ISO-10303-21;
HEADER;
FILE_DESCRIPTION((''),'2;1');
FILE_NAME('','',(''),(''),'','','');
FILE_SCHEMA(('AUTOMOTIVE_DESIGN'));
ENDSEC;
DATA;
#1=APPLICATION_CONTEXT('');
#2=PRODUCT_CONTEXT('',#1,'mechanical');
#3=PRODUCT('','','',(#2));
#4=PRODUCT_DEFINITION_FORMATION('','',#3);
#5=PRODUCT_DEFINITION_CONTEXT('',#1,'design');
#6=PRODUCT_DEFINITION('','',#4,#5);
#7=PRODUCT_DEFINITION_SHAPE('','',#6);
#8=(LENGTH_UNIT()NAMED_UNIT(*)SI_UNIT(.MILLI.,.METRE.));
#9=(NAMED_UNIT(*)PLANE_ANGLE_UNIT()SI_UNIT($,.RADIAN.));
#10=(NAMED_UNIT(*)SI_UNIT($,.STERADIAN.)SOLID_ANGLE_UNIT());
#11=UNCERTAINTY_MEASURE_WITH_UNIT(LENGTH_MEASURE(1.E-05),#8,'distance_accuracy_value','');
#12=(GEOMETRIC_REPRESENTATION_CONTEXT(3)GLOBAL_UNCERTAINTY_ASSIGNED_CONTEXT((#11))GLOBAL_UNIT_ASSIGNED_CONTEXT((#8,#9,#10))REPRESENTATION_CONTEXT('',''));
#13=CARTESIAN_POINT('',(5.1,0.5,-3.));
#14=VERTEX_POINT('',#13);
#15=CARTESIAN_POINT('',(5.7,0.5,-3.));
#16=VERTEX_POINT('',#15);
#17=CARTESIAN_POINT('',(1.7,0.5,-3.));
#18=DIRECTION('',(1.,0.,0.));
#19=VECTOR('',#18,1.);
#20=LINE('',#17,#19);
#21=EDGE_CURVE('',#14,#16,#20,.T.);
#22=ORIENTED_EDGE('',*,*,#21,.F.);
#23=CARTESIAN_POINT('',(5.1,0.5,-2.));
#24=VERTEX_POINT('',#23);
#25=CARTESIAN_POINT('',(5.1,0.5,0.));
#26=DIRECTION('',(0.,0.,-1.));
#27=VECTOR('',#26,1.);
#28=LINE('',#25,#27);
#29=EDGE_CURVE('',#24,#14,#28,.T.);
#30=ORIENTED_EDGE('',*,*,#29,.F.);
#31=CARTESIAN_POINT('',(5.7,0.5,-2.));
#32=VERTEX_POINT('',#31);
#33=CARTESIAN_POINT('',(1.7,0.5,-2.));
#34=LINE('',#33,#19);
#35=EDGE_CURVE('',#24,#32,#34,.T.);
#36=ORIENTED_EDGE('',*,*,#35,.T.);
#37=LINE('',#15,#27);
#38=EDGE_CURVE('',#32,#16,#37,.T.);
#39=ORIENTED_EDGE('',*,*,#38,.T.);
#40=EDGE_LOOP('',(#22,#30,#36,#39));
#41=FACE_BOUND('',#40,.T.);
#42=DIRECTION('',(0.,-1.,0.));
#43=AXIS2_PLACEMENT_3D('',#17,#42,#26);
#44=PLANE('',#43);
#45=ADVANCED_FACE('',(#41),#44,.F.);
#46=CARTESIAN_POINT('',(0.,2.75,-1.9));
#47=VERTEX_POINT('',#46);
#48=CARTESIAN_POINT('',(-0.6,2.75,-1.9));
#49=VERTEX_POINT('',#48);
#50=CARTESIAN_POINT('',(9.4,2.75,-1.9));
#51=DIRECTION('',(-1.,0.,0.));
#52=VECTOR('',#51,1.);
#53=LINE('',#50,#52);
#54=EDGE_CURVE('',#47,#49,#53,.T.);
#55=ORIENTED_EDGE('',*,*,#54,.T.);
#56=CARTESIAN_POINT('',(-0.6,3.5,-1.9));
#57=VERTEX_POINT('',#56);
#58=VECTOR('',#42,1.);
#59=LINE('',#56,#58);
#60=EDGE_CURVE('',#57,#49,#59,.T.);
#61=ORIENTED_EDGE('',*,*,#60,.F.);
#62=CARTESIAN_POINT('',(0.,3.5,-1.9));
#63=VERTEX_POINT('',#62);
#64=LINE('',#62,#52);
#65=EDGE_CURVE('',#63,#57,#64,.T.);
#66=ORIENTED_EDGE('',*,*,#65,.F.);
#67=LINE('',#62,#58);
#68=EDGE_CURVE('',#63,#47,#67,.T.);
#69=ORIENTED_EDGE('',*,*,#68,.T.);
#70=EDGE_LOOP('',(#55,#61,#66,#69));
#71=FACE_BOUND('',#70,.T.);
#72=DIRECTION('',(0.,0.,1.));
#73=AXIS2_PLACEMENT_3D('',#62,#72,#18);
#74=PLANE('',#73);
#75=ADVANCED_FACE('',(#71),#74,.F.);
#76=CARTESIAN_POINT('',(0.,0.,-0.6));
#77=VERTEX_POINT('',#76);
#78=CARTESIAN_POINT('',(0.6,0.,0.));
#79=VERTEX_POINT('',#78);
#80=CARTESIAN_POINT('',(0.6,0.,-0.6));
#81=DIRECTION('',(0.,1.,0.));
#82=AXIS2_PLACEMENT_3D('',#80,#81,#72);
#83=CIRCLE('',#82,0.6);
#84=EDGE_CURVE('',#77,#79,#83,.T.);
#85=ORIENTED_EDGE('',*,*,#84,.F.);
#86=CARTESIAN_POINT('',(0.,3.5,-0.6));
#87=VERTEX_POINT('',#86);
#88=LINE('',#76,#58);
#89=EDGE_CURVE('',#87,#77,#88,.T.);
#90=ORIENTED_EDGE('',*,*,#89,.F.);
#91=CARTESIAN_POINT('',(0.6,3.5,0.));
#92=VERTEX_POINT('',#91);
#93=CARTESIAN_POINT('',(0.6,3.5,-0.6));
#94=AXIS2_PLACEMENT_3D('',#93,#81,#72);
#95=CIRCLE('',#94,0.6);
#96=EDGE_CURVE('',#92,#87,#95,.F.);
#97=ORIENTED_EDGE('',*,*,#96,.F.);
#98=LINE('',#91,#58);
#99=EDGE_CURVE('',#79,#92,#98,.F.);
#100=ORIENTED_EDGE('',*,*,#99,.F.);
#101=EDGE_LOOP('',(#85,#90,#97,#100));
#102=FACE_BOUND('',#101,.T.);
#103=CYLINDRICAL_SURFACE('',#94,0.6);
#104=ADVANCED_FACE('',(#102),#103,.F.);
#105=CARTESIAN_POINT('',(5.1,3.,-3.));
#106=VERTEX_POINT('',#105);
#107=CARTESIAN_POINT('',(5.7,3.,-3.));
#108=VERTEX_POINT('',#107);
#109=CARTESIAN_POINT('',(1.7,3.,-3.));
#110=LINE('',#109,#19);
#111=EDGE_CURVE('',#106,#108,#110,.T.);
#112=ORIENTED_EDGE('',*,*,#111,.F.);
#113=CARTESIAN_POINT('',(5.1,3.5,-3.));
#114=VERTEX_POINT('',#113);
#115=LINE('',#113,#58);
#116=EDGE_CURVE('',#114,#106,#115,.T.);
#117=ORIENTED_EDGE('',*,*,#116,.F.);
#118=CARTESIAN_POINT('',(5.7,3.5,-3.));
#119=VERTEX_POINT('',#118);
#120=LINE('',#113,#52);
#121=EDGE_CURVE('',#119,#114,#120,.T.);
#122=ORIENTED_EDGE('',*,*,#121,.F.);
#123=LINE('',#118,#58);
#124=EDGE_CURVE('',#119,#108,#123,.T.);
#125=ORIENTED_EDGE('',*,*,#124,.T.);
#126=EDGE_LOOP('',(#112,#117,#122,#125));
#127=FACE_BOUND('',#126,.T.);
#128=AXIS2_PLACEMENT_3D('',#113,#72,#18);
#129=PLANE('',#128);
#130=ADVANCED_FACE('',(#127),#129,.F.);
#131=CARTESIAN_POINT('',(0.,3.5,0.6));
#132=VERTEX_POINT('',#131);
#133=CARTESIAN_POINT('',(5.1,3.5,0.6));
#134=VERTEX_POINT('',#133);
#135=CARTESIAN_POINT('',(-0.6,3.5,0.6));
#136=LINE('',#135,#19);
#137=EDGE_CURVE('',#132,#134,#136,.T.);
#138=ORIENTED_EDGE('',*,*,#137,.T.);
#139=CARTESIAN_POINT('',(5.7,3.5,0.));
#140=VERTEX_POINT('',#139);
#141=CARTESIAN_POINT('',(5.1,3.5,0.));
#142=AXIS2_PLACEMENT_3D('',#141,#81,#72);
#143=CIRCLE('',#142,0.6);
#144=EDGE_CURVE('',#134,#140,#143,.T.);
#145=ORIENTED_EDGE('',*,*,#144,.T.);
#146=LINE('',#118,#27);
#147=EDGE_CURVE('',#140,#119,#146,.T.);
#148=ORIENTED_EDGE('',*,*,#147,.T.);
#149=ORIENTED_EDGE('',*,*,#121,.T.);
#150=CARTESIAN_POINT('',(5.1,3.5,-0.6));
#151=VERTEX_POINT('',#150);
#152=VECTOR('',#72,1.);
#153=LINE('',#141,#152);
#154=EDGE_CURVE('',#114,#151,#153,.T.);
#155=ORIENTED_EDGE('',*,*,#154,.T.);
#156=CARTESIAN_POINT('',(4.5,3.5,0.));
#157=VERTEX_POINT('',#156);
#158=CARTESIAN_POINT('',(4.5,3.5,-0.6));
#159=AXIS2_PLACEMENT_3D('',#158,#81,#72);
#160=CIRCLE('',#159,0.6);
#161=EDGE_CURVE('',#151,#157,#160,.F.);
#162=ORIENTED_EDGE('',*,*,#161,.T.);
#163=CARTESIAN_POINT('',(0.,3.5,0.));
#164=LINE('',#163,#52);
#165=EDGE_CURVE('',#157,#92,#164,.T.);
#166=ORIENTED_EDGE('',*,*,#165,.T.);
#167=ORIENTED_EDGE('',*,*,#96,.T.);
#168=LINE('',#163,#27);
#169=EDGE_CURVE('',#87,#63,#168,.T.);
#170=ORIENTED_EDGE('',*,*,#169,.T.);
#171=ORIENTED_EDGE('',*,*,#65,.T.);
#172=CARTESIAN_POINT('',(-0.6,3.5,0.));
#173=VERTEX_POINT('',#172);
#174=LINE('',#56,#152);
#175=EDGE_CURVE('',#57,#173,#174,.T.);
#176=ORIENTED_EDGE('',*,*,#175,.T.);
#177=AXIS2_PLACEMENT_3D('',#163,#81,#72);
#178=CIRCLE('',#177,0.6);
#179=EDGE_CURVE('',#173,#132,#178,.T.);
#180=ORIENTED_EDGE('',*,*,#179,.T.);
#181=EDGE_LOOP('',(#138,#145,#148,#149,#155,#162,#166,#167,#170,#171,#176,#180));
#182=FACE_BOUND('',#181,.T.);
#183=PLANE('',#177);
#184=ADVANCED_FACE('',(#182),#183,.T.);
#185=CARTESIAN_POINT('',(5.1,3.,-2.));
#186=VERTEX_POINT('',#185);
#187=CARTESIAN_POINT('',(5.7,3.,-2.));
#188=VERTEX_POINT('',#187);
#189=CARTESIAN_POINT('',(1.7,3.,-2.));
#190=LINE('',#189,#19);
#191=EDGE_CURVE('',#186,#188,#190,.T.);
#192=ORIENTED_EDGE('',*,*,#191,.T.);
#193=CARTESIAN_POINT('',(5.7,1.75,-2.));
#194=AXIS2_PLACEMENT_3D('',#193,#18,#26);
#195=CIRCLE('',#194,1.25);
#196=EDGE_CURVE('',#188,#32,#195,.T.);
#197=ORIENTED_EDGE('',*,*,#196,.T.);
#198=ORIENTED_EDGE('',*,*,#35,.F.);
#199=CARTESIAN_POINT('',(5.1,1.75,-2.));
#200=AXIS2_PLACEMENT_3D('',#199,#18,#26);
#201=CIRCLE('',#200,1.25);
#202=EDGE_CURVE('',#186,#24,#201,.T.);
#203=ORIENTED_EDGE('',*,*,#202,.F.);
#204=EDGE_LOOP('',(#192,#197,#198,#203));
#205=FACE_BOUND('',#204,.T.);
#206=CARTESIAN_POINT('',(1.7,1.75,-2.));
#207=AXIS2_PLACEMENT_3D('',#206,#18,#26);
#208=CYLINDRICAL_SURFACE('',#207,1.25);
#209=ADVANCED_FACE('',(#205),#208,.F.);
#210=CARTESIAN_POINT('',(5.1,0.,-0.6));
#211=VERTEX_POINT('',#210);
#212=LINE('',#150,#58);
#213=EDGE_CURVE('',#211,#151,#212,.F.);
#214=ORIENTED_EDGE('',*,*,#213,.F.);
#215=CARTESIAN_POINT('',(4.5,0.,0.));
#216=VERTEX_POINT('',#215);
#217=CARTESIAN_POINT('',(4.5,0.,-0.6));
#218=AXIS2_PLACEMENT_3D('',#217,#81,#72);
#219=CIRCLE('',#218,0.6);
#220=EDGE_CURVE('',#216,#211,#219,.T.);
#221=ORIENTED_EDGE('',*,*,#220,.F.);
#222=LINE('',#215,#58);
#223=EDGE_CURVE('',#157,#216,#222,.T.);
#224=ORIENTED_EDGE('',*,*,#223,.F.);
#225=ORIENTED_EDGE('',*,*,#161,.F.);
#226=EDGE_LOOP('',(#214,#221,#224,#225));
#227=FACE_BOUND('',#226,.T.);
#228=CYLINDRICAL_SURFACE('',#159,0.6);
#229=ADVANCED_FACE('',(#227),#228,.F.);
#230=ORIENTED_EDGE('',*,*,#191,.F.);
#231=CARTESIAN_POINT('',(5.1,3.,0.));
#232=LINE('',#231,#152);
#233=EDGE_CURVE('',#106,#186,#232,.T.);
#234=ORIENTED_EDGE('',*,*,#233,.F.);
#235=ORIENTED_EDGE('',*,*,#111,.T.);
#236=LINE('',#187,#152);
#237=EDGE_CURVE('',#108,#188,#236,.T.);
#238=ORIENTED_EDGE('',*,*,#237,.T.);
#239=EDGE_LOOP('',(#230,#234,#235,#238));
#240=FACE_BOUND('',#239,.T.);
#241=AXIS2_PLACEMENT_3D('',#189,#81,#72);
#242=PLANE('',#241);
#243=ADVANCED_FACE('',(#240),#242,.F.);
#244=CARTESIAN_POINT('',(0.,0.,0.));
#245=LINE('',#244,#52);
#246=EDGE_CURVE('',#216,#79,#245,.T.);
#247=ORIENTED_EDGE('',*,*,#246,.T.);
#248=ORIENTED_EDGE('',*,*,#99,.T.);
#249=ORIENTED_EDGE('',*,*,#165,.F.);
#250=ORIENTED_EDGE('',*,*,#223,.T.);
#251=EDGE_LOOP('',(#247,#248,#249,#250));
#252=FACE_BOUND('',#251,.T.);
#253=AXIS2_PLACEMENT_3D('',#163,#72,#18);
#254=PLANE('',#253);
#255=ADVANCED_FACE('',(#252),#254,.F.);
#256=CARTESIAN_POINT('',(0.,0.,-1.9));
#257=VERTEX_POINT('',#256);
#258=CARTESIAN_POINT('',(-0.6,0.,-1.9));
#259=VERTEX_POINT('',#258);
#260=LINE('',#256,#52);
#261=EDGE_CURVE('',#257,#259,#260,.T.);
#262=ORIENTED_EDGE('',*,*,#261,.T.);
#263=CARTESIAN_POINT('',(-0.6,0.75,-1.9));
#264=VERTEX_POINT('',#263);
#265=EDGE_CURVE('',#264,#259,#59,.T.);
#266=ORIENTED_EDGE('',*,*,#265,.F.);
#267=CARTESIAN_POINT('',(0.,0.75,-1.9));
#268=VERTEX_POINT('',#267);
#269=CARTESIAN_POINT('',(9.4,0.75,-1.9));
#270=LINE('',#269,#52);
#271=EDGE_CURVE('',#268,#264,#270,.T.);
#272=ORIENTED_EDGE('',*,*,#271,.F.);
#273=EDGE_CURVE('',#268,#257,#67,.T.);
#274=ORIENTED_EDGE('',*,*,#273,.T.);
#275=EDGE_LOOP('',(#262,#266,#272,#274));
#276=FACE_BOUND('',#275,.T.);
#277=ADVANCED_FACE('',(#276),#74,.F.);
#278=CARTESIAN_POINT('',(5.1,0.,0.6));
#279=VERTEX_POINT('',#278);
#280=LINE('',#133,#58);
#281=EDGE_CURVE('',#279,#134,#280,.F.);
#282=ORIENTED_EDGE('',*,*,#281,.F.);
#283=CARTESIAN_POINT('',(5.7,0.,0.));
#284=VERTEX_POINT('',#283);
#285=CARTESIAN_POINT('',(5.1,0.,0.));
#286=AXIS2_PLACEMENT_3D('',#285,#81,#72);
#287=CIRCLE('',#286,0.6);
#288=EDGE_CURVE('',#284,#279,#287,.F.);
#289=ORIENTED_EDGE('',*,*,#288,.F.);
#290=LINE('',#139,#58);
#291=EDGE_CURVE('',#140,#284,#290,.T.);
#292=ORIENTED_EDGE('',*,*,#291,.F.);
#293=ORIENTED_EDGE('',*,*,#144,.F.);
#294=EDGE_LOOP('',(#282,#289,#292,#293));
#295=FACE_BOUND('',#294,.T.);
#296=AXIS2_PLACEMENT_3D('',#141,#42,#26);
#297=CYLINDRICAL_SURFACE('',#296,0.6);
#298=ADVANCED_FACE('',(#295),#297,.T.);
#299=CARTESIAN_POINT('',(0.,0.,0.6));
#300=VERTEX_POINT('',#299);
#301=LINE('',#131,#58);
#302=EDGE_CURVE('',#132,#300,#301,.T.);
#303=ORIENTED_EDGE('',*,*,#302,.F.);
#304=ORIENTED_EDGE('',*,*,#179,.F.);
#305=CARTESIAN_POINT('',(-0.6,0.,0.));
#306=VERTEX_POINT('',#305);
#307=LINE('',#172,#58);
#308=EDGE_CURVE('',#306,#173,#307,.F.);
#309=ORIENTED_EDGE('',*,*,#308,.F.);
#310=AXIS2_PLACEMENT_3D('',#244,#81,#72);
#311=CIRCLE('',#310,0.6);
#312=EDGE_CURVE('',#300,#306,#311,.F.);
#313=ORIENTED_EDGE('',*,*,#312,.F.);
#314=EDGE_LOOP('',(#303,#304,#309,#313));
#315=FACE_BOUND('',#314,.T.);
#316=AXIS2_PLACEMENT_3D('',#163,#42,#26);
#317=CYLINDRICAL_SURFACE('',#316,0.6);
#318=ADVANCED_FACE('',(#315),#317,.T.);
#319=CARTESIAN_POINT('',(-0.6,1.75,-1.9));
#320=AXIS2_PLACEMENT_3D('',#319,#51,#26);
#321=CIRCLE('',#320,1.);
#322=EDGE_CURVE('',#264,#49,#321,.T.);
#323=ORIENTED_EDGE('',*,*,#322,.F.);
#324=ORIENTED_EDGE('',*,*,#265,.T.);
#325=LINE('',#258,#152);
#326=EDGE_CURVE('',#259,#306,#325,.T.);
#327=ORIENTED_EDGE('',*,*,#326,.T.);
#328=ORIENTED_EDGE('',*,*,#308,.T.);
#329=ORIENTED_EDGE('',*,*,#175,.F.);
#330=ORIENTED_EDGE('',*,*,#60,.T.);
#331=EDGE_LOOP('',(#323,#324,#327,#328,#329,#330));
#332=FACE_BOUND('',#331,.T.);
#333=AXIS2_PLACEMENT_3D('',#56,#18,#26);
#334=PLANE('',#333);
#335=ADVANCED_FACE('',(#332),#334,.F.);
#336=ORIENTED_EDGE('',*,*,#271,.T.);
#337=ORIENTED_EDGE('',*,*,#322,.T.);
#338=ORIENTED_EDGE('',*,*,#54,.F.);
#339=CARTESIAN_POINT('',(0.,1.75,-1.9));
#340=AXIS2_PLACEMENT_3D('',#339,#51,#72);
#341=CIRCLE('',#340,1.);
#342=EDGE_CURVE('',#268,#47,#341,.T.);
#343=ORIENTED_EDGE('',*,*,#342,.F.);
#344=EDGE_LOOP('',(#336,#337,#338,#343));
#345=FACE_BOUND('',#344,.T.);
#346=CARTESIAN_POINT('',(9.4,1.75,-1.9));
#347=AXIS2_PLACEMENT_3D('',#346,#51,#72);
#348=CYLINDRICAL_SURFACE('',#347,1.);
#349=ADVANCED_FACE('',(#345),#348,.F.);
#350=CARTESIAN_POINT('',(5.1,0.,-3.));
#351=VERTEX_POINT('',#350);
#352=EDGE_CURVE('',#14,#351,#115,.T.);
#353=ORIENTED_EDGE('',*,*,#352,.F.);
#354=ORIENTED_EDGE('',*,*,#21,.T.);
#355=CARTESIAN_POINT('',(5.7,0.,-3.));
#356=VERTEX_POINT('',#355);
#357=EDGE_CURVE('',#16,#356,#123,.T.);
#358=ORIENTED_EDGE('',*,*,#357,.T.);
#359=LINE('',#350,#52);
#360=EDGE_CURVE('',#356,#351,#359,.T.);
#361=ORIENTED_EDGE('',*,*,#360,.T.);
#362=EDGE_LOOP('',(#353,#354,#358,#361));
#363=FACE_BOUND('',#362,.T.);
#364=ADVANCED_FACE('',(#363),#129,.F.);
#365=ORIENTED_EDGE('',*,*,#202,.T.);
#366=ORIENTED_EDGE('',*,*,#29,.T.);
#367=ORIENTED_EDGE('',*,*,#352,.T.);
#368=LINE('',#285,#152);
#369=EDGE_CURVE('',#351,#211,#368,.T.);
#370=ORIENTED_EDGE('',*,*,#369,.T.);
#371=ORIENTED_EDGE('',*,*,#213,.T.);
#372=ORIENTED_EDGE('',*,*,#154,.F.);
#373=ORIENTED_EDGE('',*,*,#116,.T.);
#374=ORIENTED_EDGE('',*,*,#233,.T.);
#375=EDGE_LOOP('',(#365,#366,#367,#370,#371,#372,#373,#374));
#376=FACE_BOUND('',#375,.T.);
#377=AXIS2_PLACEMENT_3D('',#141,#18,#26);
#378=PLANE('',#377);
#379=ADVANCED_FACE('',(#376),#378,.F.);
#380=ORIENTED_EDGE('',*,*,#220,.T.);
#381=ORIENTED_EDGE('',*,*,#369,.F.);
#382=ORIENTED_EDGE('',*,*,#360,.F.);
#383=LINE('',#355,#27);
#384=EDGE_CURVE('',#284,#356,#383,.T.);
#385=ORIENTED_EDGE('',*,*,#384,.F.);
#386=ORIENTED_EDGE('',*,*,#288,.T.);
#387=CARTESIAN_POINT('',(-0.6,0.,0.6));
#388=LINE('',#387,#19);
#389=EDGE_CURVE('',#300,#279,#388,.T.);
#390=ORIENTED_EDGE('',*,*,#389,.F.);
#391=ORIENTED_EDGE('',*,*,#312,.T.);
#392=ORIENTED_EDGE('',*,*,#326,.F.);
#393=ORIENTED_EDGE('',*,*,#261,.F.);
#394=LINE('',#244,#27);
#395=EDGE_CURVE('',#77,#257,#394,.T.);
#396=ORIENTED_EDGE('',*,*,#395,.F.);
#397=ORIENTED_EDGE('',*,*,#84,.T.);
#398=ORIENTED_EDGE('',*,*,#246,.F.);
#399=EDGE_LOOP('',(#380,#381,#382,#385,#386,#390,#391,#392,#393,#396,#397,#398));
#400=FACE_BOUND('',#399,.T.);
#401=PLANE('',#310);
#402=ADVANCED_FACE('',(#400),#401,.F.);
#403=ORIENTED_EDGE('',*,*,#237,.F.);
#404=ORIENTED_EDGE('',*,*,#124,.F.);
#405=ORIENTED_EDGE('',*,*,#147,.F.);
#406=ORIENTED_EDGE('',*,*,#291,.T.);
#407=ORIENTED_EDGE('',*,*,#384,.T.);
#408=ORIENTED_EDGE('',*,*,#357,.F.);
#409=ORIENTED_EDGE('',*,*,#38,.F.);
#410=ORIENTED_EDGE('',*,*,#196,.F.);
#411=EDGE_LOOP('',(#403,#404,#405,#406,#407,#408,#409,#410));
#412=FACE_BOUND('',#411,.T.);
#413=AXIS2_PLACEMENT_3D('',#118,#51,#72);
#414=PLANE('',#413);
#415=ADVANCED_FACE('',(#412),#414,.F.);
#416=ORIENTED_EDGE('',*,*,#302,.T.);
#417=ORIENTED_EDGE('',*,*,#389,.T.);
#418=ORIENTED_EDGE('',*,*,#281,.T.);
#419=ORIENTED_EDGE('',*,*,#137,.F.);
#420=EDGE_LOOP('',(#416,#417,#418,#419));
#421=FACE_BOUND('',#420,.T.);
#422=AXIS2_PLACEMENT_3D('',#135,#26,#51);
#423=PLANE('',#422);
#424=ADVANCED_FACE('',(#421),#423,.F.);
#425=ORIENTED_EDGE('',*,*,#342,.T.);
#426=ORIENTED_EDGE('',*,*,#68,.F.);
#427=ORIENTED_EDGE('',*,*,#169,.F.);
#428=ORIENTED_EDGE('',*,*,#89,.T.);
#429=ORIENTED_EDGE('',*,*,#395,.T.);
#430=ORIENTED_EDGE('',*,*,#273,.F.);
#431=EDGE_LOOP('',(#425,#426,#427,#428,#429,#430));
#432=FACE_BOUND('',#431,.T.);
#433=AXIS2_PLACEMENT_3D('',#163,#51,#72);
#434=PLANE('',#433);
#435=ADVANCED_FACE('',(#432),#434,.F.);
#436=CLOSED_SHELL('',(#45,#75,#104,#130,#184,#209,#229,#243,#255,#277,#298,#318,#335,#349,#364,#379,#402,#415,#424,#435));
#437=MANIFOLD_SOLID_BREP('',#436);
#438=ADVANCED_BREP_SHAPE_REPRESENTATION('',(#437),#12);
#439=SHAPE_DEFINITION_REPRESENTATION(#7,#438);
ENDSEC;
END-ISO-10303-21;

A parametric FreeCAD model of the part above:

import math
import FreeCAD as App
import Part
import Sketcher

V = App.Vector
Q = App.Units.Quantity


def edges_at(feature, points):
    """Names of the edges that pass closest to the given points."""
    edges = feature.Shape.Edges
    near = lambda p: min(range(len(edges)), key=lambda i: edges[i].distToShape(Part.Vertex(*p))[0])
    return sorted({f"Edge{near(p) + 1}" for p in points})


def add_polygon(sketch, points):
    """Adds a closed chain of lines whose ends are joined by coincident constraints."""
    first, n = sketch.GeometryCount, len(points)
    for a, b in zip(points, points[1:] + points[:1]):
        sketch.addGeometry(Part.LineSegment(App.Vector(*a, 0), App.Vector(*b, 0)), False)
    for i in range(n):
        sketch.addConstraint(Sketcher.Constraint("Coincident", first + i, 2, first + (i + 1) % n, 1))

doc = App.newDocument("Part")
body = doc.addObject("PartDesign::Body", "Body")

sketch1 = body.newObject("Sketcher::SketchObject", "Sketch")
sketch1.AttachmentSupport = (doc.getObject("XZ_Plane"), [""])
sketch1.MapMode = "FlatFace"
add_polygon(sketch1, [(0, 0), (0, -1.9), (-0.6, -1.9), (-0.6, 0.6), (5.7, 0.6), (5.7, -3), (5.1, -3), (5.1, 0)])
sketch1.addConstraint(Sketcher.Constraint("Vertical", 0))
sketch1.addConstraint(Sketcher.Constraint("Horizontal", 1))
sketch1.addConstraint(Sketcher.Constraint("Vertical", 2))
sketch1.addConstraint(Sketcher.Constraint("Horizontal", 3))
sketch1.addConstraint(Sketcher.Constraint("Vertical", 4))
sketch1.addConstraint(Sketcher.Constraint("Horizontal", 5))
sketch1.addConstraint(Sketcher.Constraint("Vertical", 6))
sketch1.addConstraint(Sketcher.Constraint("Horizontal", 7))
sketch1.addConstraint(Sketcher.Constraint("Coincident", 7, 2, -1, 1))
sketch1.addConstraint(Sketcher.Constraint("Equal", 1, 5))
sketch1.addConstraint(Sketcher.Constraint("DistanceY", 6, 1, 6, 2, Q("3 mm")))
sketch1.addConstraint(Sketcher.Constraint("DistanceX", 1, 2, 1, 1, Q("0.6 mm")))
sketch1.addConstraint(Sketcher.Constraint("DistanceX", 3, 1, 3, 2, Q("6.3 mm")))
sketch1.addConstraint(Sketcher.Constraint("DistanceY", 0, 2, 0, 1, Q("1.9 mm")))
sketch1.addConstraint(Sketcher.Constraint("DistanceY", 2, 1, 2, 2, Q("2.5 mm")))
pad1 = body.newObject("PartDesign::Pad", "Pad")
pad1.Profile = sketch1
pad1.Length = 3.5
pad1.Reversed = True
doc.recompute()

fillet = body.newObject("PartDesign::Fillet", "Fillet")
fillet.Base = (pad1, edges_at(pad1, [
    (5.1, 1.75, 0),
    (5.7, 1.75, 0.6),
    (-0.6, 1.75, 0.6),
    (0, 1.75, 0),
]))
fillet.Radius = 0.6

sketch2 = body.newObject("Sketcher::SketchObject", "Sketch001")
sketch2.AttachmentSupport = (doc.getObject("YZ_Plane"), [""])
sketch2.MapMode = "FlatFace"
sketch2.AttachmentOffset = App.Placement(V(0, 0, 5.7), App.Rotation())
sketch2.addGeometry(Part.LineSegment(V(3, -3, 0), V(3, -2, 0)), False)
sketch2.addGeometry(Part.ArcOfCircle(Part.Circle(V(1.8, -2, 0), V(0, 0, 1), 1.2), math.radians(0), math.radians(180)), False)
sketch2.addGeometry(Part.LineSegment(V(0.5, -2, 0), V(0.5, -3, 0)), False)
sketch2.addGeometry(Part.LineSegment(V(0.5, -3, 0), V(3, -3, 0)), False)
sketch2.addConstraint(Sketcher.Constraint("Tangent", 0, 2, 1, 1))
sketch2.addConstraint(Sketcher.Constraint("Tangent", 1, 2, 2, 1))
sketch2.addConstraint(Sketcher.Constraint("Coincident", 2, 2, 3, 1))
sketch2.addConstraint(Sketcher.Constraint("Coincident", 3, 2, 0, 1))
sketch2.addConstraint(Sketcher.Constraint("Vertical", 0))
sketch2.addConstraint(Sketcher.Constraint("Vertical", 2))
sketch2.addConstraint(Sketcher.Constraint("Horizontal", 3))
sketch2.addConstraint(Sketcher.Constraint("DistanceY", 0, 1, 0, 2, Q("1 mm")))
sketch2.addConstraint(Sketcher.Constraint("Radius", 1, Q("1.25 mm")))
sketch2.addConstraint(Sketcher.Constraint("DistanceY", 1, 3, -1, 1, Q("2 mm")))
sketch2.addConstraint(Sketcher.Constraint("DistanceX", -1, 1, 0, 2, Q("3 mm")))
pocket1 = body.newObject("PartDesign::Pocket", "Pocket")
pocket1.Profile = sketch2
pocket1.Length = 4

sketch3 = body.newObject("Sketcher::SketchObject", "Sketch002")
sketch3.AttachmentSupport = (doc.getObject("YZ_Plane"), [""])
sketch3.MapMode = "FlatFace"
sketch3.AttachmentOffset = App.Placement(V(0, 0, -0.6), App.Rotation())
sketch3.addGeometry(Part.LineSegment(V(2.8, -1.9, 0), V(0.8, -1.9, 0)), False)
sketch3.addGeometry(Part.ArcOfCircle(Part.Circle(V(1.8, -1.9, 0), V(0, 0, 1), 1), math.radians(0), math.radians(180)), False)
sketch3.addConstraint(Sketcher.Constraint("Coincident", 0, 1, 1, 1))
sketch3.addConstraint(Sketcher.Constraint("Coincident", 1, 2, 0, 2))
sketch3.addConstraint(Sketcher.Constraint("Horizontal", 0))
sketch3.addConstraint(Sketcher.Constraint("Horizontal", 1, 3, 0, 1))
sketch3.addConstraint(Sketcher.Constraint("Radius", 1, Q("1 mm")))
sketch3.addConstraint(Sketcher.Constraint("DistanceY", 1, 3, -1, 1, Q("1.9 mm")))
sketch3.addConstraint(Sketcher.Constraint("DistanceX", -1, 1, 1, 3, Q("1.75 mm")))
pocket2 = body.newObject("PartDesign::Pocket", "Pocket001")
pocket2.Profile = sketch3
pocket2.Length = 10
pocket2.Reversed = True

doc.recompute()
